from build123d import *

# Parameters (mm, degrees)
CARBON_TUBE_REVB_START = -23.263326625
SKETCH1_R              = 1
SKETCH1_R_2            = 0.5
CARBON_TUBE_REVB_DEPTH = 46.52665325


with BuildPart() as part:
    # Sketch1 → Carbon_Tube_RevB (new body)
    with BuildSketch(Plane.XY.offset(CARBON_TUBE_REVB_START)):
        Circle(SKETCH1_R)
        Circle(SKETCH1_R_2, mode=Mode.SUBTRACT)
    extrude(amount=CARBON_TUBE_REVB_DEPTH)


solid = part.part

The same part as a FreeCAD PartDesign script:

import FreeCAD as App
import Part
import Sketcher
Q = App.Units.Quantity

doc = App.newDocument("Part")
body = doc.addObject("PartDesign::Body", "Body")

# Sketch on XY plane
sketch1 = body.newObject("Sketcher::SketchObject", "Sketch")
sketch1.AttachmentSupport = (doc.getObject("XY_Plane"), [""])
sketch1.MapMode = "FlatFace"
sketch1.AttachmentOffset = App.Placement(App.Vector(0, 0, -23.263327), App.Rotation())
sketch1.addGeometry(Part.Circle(App.Vector(0, 0, 0), App.Vector(0, 0, 1), 1), False)
sketch1.addGeometry(Part.Circle(App.Vector(0, 0, 0), App.Vector(0, 0, 1), 0.5), False)
sketch1.addConstraint(Sketcher.Constraint("Coincident", 0, 3, -1, 1))
sketch1.addConstraint(Sketcher.Constraint("Coincident", 1, 3, -1, 1))
sketch1.addConstraint(Sketcher.Constraint("Diameter", 0, Q("2 mm")))
sketch1.addConstraint(Sketcher.Constraint("Diameter", 1, Q("1 mm")))
pad1 = body.newObject("PartDesign::Pad", "Pad")
pad1.Profile = sketch1
pad1.Length = 46.526653

doc.recompute()
